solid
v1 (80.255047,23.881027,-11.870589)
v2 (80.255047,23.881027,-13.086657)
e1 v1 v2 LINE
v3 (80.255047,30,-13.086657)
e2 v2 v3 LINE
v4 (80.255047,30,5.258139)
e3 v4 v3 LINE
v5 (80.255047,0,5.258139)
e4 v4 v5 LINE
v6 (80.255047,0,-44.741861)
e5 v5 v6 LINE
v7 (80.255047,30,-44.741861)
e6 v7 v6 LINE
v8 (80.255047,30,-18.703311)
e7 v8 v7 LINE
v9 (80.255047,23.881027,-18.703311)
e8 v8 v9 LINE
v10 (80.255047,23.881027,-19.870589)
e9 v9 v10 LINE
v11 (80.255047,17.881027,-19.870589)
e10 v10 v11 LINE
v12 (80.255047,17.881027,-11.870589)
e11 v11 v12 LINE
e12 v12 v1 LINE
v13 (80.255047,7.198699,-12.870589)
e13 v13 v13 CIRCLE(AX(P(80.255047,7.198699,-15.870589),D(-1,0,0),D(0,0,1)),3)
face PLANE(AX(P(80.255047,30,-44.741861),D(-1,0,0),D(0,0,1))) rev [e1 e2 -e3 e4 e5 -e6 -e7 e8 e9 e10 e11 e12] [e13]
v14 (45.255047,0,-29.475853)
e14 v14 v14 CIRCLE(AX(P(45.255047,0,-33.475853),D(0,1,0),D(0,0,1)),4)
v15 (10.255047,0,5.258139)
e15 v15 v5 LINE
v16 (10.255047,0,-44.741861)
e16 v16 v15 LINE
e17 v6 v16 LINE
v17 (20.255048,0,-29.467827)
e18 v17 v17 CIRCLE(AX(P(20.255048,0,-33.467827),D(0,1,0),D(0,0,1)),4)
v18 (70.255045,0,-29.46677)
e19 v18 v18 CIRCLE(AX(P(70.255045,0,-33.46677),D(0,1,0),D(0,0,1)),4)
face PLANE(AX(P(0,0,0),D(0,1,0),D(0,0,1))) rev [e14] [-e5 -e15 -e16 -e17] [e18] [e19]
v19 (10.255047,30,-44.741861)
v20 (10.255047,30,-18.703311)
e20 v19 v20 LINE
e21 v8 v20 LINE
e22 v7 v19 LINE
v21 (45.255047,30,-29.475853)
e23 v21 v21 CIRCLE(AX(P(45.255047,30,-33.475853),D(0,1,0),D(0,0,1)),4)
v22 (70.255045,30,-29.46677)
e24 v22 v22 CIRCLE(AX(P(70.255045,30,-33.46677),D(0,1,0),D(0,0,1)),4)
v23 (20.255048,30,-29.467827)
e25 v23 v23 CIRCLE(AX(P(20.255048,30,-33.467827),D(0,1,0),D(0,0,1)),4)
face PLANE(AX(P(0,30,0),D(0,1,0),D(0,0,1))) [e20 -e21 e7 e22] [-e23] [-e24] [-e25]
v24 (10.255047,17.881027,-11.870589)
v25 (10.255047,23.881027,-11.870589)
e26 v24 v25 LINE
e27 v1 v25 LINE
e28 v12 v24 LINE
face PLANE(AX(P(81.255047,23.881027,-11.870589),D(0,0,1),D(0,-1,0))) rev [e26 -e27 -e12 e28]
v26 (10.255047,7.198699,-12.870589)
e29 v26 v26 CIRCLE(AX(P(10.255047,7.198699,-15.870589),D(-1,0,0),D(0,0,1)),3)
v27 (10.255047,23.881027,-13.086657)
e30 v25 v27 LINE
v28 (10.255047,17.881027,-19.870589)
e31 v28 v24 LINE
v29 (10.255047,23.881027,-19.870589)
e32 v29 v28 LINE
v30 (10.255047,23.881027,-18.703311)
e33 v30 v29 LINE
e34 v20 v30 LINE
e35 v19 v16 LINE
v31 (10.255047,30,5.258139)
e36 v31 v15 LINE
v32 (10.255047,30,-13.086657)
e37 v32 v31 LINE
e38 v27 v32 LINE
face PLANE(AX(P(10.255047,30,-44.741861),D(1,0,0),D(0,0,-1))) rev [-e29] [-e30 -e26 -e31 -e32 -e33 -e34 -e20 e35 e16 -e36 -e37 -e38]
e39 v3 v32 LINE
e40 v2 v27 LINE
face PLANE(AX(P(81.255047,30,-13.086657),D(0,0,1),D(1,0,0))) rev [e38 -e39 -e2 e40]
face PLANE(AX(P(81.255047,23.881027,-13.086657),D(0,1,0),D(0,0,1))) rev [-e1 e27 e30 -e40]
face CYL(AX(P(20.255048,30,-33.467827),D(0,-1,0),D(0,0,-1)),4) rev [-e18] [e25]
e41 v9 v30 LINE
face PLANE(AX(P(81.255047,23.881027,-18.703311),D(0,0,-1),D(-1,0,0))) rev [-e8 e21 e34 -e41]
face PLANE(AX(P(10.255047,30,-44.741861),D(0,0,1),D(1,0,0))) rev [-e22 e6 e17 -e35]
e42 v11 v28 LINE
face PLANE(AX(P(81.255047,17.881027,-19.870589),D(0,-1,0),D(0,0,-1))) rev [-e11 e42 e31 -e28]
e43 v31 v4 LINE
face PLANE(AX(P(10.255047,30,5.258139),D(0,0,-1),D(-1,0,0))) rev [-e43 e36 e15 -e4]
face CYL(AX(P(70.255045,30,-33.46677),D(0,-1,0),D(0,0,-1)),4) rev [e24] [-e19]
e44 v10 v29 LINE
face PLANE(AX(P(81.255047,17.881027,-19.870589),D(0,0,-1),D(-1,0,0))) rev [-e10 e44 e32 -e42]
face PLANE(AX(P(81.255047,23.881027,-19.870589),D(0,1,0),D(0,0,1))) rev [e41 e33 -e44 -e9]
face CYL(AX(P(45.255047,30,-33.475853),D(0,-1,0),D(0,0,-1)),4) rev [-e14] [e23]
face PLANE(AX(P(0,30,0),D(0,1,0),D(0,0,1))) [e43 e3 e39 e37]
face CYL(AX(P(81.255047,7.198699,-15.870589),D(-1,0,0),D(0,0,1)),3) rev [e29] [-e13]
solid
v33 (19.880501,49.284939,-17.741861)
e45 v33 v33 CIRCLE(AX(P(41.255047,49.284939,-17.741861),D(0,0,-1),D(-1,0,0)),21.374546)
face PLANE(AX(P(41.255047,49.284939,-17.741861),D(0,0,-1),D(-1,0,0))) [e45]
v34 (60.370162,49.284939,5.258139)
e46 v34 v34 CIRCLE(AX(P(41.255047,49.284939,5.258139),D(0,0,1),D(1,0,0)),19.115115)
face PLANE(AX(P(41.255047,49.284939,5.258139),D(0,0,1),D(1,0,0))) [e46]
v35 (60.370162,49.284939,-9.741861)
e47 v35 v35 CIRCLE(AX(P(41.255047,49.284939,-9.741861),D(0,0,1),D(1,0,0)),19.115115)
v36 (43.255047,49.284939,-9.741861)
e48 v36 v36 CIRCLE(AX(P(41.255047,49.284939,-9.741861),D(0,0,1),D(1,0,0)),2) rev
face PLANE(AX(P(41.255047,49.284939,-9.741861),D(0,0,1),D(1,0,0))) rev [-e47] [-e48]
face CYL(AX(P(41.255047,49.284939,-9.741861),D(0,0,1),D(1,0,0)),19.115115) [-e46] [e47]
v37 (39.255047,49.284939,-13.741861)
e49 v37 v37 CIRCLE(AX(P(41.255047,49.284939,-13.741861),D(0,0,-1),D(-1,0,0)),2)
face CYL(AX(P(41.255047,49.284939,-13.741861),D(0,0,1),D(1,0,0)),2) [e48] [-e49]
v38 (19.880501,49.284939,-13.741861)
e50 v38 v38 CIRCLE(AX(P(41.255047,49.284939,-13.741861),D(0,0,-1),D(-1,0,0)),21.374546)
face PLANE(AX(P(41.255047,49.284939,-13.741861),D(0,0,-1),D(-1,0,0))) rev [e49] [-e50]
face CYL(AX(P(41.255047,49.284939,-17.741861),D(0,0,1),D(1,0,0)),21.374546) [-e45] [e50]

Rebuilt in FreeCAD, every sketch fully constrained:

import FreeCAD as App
import Part
import Sketcher
Q = App.Units.Quantity

doc = App.newDocument("Part")
body = doc.addObject("PartDesign::Body", "Body")

sketch1 = body.newObject("Sketcher::SketchObject", "Sketch")
sketch1.AttachmentSupport = (doc.getObject("XZ_Plane"), [""])
sketch1.MapMode = "FlatFace"
sketch1.addGeometry(Part.LineSegment(App.Vector(10.3, -44.7, 0), App.Vector(10.3, 5.3, 0)), False)
sketch1.addGeometry(Part.LineSegment(App.Vector(10.3, 5.3, 0), App.Vector(80.3, 5.3, 0)), False)
sketch1.addGeometry(Part.LineSegment(App.Vector(80.3, 5.3, 0), App.Vector(80.3, -44.7, 0)), False)
sketch1.addGeometry(Part.LineSegment(App.Vector(80.3, -44.7, 0), App.Vector(10.3, -44.7, 0)), False)
sketch1.addGeometry(Part.Circle(App.Vector(20.3, -33.5, 0), App.Vector(0, 0, 1), 4), False)
sketch1.addGeometry(Part.Circle(App.Vector(70.3, -33.5, 0), App.Vector(0, 0, 1), 4), False)
sketch1.addGeometry(Part.Circle(App.Vector(45.3, -33.5, 0), App.Vector(0, 0, 1), 4), False)
sketch1.addConstraint(Sketcher.Constraint("Coincident", 0, 2, 1, 1))
sketch1.addConstraint(Sketcher.Constraint("Coincident", 1, 2, 2, 1))
sketch1.addConstraint(Sketcher.Constraint("Coincident", 2, 2, 3, 1))
sketch1.addConstraint(Sketcher.Constraint("Coincident", 3, 2, 0, 1))
sketch1.addConstraint(Sketcher.Constraint("Vertical", 0))
sketch1.addConstraint(Sketcher.Constraint("Horizontal", 1))
sketch1.addConstraint(Sketcher.Constraint("Vertical", 2))
sketch1.addConstraint(Sketcher.Constraint("Horizontal", 3))
sketch1.addConstraint(Sketcher.Constraint("Equal", 4, 5))
sketch1.addConstraint(Sketcher.Constraint("Equal", 5, 6))
sketch1.addConstraint(Sketcher.Constraint("Diameter", 4, Q("8 mm")))
sketch1.addConstraint(Sketcher.Constraint("DistanceX", 1, 1, 1, 2, Q("70 mm")))
sketch1.addConstraint(Sketcher.Constraint("DistanceY", 0, 1, 0, 2, Q("50 mm")))
sketch1.addConstraint(Sketcher.Constraint("DistanceX", 4, 3, 6, 3, Q("24.999999 mm")))
sketch1.addConstraint(Sketcher.Constraint("DistanceX", 6, 3, 5, 3, Q("24.999998 mm")))
sketch1.addConstraint(Sketcher.Constraint("DistanceX", 0, 2, 4, 3, Q("10.000001 mm")))
sketch1.addConstraint(Sketcher.Constraint("DistanceX", -1, 1, 4, 3, Q("20.255048 mm")))
sketch1.addConstraint(Sketcher.Constraint("DistanceY", 5, 3, -1, 1, Q("33.46677 mm")))
sketch1.addConstraint(Sketcher.Constraint("DistanceY", -1, 1, 0, 2, Q("5.258139 mm")))
sketch1.addConstraint(Sketcher.Constraint("DistanceY", 4, 3, -1, 1, Q("33.467827 mm")))
sketch1.addConstraint(Sketcher.Constraint("DistanceY", 6, 3, -1, 1, Q("33.475853 mm")))
pad1 = body.newObject("PartDesign::Pad", "Pad")
pad1.Profile = sketch1
pad1.Length = 30
pad1.Reversed = True

sketch2 = body.newObject("Sketcher::SketchObject", "Sketch001")
sketch2.AttachmentSupport = (doc.getObject("YZ_Plane"), [""])
sketch2.MapMode = "FlatFace"
sketch2.AttachmentOffset = App.Placement(App.Vector(0, 0, 10.255047), App.Rotation())
sketch2.addGeometry(Part.Circle(App.Vector(7.2, -15.9, 0), App.Vector(0, 0, 1), 3), False)
sketch2.addGeometry(Part.LineSegment(App.Vector(17.9, -19.9, 0), App.Vector(17.9, -11.9, 0)), False)
sketch2.addGeometry(Part.LineSegment(App.Vector(17.9, -11.9, 0), App.Vector(23.9, -11.9, 0)), False)
sketch2.addGeometry(Part.LineSegment(App.Vector(23.9, -11.9, 0), App.Vector(23.9, -13.1, 0)), False)
sketch2.addGeometry(Part.LineSegment(App.Vector(23.9, -13.1, 0), App.Vector(30, -13.1, 0)), False)
sketch2.addGeometry(Part.LineSegment(App.Vector(30, -13.1, 0), App.Vector(30, -18.7, 0)), False)
sketch2.addGeometry(Part.LineSegment(App.Vector(30, -18.7, 0), App.Vector(23.9, -18.7, 0)), False)
sketch2.addGeometry(Part.LineSegment(App.Vector(23.9, -18.7, 0), App.Vector(23.9, -19.9, 0)), False)
sketch2.addGeometry(Part.LineSegment(App.Vector(23.9, -19.9, 0), App.Vector(17.9, -19.9, 0)), False)
sketch2.addConstraint(Sketcher.Constraint("Coincident", 1, 2, 2, 1))
sketch2.addConstraint(Sketcher.Constraint("Coincident", 2, 2, 3, 1))
sketch2.addConstraint(Sketcher.Constraint("Coincident", 3, 2, 4, 1))
sketch2.addConstraint(Sketcher.Constraint("Coincident", 4, 2, 5, 1))
sketch2.addConstraint(Sketcher.Constraint("Coincident", 5, 2, 6, 1))
sketch2.addConstraint(Sketcher.Constraint("Coincident", 6, 2, 7, 1))
sketch2.addConstraint(Sketcher.Constraint("Coincident", 7, 2, 8, 1))
sketch2.addConstraint(Sketcher.Constraint("Coincident", 8, 2, 1, 1))
sketch2.addConstraint(Sketcher.Constraint("Vertical", 1))
sketch2.addConstraint(Sketcher.Constraint("Horizontal", 2))
sketch2.addConstraint(Sketcher.Constraint("Vertical", 3))
sketch2.addConstraint(Sketcher.Constraint("Horizontal", 4))
sketch2.addConstraint(Sketcher.Constraint("Vertical", 5))
sketch2.addConstraint(Sketcher.Constraint("Horizontal", 6))
sketch2.addConstraint(Sketcher.Constraint("Vertical", 7))
sketch2.addConstraint(Sketcher.Constraint("Horizontal", 8))
sketch2.addConstraint(Sketcher.Constraint("Vertical", 3, 2, 6, 2))
sketch2.addConstraint(Sketcher.Constraint("Diameter", 0, Q("6 mm")))
sketch2.addConstraint(Sketcher.Constraint("DistanceX", 2, 1, 2, 2, Q("6 mm")))
sketch2.addConstraint(Sketcher.Constraint("DistanceY", 1, 1, 1, 2, Q("8 mm")))
sketch2.addConstraint(Sketcher.Constraint("DistanceX", -1, 1, 4, 2, Q("30 mm")))
sketch2.addConstraint(Sketcher.Constraint("DistanceY", 0, 3, 1, 2, Q("4 mm")))
sketch2.addConstraint(Sketcher.Constraint("DistanceY", 3, 2, 3, 1, Q("1.216069 mm")))
sketch2.addConstraint(Sketcher.Constraint("DistanceX", -1, 1, 0, 3, Q("7.198699 mm")))
sketch2.addConstraint(Sketcher.Constraint("DistanceX", 4, 1, 4, 2, Q("6.118973 mm")))
sketch2.addConstraint(Sketcher.Constraint("DistanceY", 5, 2, 5, 1, Q("5.616654 mm")))
sketch2.addConstraint(Sketcher.Constraint("DistanceY", 0, 3, -1, 1, Q("15.870589 mm")))
pocket1 = body.newObject("PartDesign::Pocket", "Pocket")
pocket1.Profile = sketch2
pocket1.Length = 71
pocket1.Reversed = True
body2 = doc.addObject("PartDesign::Body", "Body001")

sketch3 = body2.newObject("Sketcher::SketchObject", "Sketch002")
sketch3.AttachmentSupport = (doc.getObject("XY_Plane001"), [""])
sketch3.MapMode = "FlatFace"
sketch3.AttachmentOffset = App.Placement(App.Vector(0, 0, 5.258139), App.Rotation())
sketch3.addGeometry(Part.Circle(App.Vector(41, 49, 0), App.Vector(0, 0, 1), 19), False)
sketch3.addConstraint(Sketcher.Constraint("Diameter", 0, Q("38.23023 mm")))
sketch3.addConstraint(Sketcher.Constraint("DistanceY", -1, 1, 0, 3, Q("49.284939 mm")))
sketch3.addConstraint(Sketcher.Constraint("DistanceX", -1, 1, 0, 3, Q("41.255047 mm")))
pad2 = body2.newObject("PartDesign::Pad", "Pad001")
pad2.Profile = sketch3
pad2.Length = 15
pad2.Reversed = True

sketch4 = body2.newObject("Sketcher::SketchObject", "Sketch003")
sketch4.AttachmentSupport = (doc.getObject("XY_Plane001"), [""])
sketch4.MapMode = "FlatFace"
sketch4.AttachmentOffset = App.Placement(App.Vector(0, 0, -9.741861), App.Rotation())
sketch4.addGeometry(Part.Circle(App.Vector(41.3, 49.3, 0), App.Vector(0, 0, 1), 2), False)
sketch4.addConstraint(Sketcher.Constraint("Diameter", 0, Q("4 mm")))
sketch4.addConstraint(Sketcher.Constraint("DistanceY", -1, 1, 0, 3, Q("49.284939 mm")))
sketch4.addConstraint(Sketcher.Constraint("DistanceX", -1, 1, 0, 3, Q("41.255047 mm")))
pad3 = body2.newObject("PartDesign::Pad", "Pad002")
pad3.Profile = sketch4
pad3.Length = 4
pad3.Reversed = True

sketch5 = body2.newObject("Sketcher::SketchObject", "Sketch004")
sketch5.AttachmentSupport = (doc.getObject("XY_Plane001"), [""])
sketch5.MapMode = "FlatFace"
sketch5.AttachmentOffset = App.Placement(App.Vector(0, 0, -13.741861), App.Rotation())
sketch5.addGeometry(Part.Circle(App.Vector(41, 49, 0), App.Vector(0, 0, 1), 21), False)
sketch5.addConstraint(Sketcher.Constraint("Diameter", 0, Q("42.749092 mm")))
sketch5.addConstraint(Sketcher.Constraint("DistanceY", -1, 1, 0, 3, Q("49.284939 mm")))
sketch5.addConstraint(Sketcher.Constraint("DistanceX", -1, 1, 0, 3, Q("41.255047 mm")))
pad4 = body2.newObject("PartDesign::Pad", "Pad003")
pad4.Profile = sketch5
pad4.Length = 4
pad4.Reversed = True

doc.recompute()
